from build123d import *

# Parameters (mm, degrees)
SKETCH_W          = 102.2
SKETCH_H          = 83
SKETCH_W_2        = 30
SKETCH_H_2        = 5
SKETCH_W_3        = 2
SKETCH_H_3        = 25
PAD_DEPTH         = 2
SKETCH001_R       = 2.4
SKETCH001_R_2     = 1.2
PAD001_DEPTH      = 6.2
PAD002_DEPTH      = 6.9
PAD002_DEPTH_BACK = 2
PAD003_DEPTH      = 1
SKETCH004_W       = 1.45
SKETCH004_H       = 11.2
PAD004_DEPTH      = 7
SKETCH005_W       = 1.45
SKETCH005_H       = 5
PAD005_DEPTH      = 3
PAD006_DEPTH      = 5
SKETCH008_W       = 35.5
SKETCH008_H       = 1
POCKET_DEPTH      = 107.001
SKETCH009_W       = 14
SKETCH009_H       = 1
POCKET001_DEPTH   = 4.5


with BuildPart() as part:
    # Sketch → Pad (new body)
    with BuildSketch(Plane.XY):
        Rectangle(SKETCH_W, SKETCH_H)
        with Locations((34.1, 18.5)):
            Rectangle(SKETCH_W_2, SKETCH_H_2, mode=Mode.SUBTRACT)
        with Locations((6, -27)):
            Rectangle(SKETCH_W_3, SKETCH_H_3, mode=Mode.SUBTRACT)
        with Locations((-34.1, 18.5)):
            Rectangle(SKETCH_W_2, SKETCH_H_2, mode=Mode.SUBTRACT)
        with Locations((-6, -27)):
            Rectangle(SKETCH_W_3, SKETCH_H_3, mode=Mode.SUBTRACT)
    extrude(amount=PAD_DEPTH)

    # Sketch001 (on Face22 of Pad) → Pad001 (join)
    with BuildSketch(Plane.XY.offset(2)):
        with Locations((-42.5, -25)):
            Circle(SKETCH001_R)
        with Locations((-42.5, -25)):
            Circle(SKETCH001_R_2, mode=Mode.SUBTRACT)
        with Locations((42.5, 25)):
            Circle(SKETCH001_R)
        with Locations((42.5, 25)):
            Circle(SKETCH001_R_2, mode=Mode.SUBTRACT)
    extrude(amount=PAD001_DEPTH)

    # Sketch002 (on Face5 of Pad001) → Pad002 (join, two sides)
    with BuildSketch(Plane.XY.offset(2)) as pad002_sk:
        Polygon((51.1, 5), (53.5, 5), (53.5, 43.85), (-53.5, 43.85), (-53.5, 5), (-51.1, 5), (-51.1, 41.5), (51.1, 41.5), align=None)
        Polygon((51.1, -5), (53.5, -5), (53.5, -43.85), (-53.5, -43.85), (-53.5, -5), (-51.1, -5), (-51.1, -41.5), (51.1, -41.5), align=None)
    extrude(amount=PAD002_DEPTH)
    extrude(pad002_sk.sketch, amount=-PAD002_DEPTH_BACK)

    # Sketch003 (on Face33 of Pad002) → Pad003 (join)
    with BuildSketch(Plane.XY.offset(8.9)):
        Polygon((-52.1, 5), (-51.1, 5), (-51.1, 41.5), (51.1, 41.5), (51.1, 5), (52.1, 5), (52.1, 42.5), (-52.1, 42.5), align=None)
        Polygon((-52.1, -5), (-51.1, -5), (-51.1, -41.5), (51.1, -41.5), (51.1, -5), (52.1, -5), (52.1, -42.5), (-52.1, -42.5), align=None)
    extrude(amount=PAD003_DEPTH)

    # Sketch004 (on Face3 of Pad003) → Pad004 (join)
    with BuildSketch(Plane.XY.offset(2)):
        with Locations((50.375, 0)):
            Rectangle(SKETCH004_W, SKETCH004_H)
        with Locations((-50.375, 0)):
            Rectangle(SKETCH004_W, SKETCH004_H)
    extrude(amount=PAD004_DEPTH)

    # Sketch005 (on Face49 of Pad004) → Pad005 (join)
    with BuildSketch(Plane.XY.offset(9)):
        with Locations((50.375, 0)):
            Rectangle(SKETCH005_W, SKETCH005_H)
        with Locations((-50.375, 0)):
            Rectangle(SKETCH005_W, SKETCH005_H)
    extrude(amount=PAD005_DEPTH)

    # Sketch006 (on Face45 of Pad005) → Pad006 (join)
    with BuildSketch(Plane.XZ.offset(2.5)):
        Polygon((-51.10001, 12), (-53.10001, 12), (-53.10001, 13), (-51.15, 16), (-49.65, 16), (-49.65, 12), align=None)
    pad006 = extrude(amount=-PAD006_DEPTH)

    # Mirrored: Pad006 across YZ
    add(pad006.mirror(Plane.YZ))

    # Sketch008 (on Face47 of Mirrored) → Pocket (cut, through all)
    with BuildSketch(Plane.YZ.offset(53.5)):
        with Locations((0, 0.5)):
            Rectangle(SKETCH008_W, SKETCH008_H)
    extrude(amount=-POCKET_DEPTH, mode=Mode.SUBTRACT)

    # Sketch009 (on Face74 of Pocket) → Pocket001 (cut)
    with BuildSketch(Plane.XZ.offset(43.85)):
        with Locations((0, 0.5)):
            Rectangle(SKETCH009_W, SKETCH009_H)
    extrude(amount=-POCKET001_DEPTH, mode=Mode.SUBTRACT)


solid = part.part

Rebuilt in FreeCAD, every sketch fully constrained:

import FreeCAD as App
import Part
import Sketcher


def add_polygon(sketch, points):
    """Adds a closed chain of lines whose ends are joined by coincident constraints."""
    first, n = sketch.GeometryCount, len(points)
    for a, b in zip(points, points[1:] + points[:1]):
        sketch.addGeometry(Part.LineSegment(App.Vector(*a, 0), App.Vector(*b, 0)), False)
    for i in range(n):
        sketch.addConstraint(Sketcher.Constraint("Coincident", first + i, 2, first + (i + 1) % n, 1))

doc = App.newDocument("Part")
body = doc.addObject("PartDesign::Body", "Body")

sketch1 = body.newObject("Sketcher::SketchObject", "Sketch")
sketch1.AttachmentSupport = (doc.getObject("XY_Plane"), [""])
sketch1.MapMode = "FlatFace"
add_polygon(sketch1, [(-51.1, 41.5), (-51.1, -41.5), (51.1, -41.5), (51.1, 41.5)])
add_polygon(sketch1, [(-5, -39.5), (-7, -39.5), (-7, -14.5), (-5, -14.5)])
add_polygon(sketch1, [(7, -39.5), (5, -39.5), (5, -14.5), (7, -14.5)])
add_polygon(sketch1, [(-19.1, 16), (-49.1, 16), (-49.1, 21), (-19.1, 21)])
add_polygon(sketch1, [(49.1, 16), (19.1, 16), (19.1, 21), (49.1, 21)])
sketch1.addConstraint([
    Sketcher.Constraint("Vertical", 0),
    Sketcher.Constraint("Horizontal", 1),
    Sketcher.Constraint("Vertical", 2),
    Sketcher.Constraint("Horizontal", 3),
    Sketcher.Constraint("Horizontal", 4),
    Sketcher.Constraint("Vertical", 5),
    Sketcher.Constraint("Horizontal", 6),
    Sketcher.Constraint("Vertical", 7),
    Sketcher.Constraint("Horizontal", 8),
    Sketcher.Constraint("Vertical", 9),
    Sketcher.Constraint("Horizontal", 10),
    Sketcher.Constraint("Vertical", 11),
    Sketcher.Constraint("Horizontal", 12),
    Sketcher.Constraint("Vertical", 13),
    Sketcher.Constraint("Horizontal", 14),
    Sketcher.Constraint("Vertical", 15),
    Sketcher.Constraint("Horizontal", 16),
    Sketcher.Constraint("Vertical", 17),
    Sketcher.Constraint("Horizontal", 18),
    Sketcher.Constraint("Vertical", 19),
    Sketcher.Constraint("Symmetric", 0, 2, 2, 2, -1, 1),
    Sketcher.Constraint("Symmetric", 7, 2, 8, 2, -2),
    Sketcher.Constraint("Symmetric", 5, 2, 10, 2, -2),
    Sketcher.Constraint("Symmetric", 15, 2, 16, 2, -2),
    Sketcher.Constraint("Symmetric", 13, 2, 18, 2, -2),
    Sketcher.Constraint("DistanceX", 4, 2, 4, 1, 2.0),
    Sketcher.Constraint("DistanceX", 12, 2, 12, 1, 30.0),
    Sketcher.Constraint("DistanceY", 0, 2, 0, 1, 83.0),
    Sketcher.Constraint("DistanceY", 5, 1, 5, 2, 25.0),
    Sketcher.Constraint("DistanceY", 13, 1, 13, 2, 5.0),
    Sketcher.Constraint("DistanceX", 1, 1, 1, 2, 102.2),
    Sketcher.Constraint("DistanceX", 4, 2, -1, 1, 7.0),
    Sketcher.Constraint("DistanceY", -1, 1, 12, 2, 16.0),
    Sketcher.Constraint("DistanceY", 0, 2, 4, 2, 2.0),
    Sketcher.Constraint("DistanceX", 3, 2, 12, 2, 2.0),
])
pad1 = body.newObject("PartDesign::Pad", "Pad")
pad1.Profile = sketch1
pad1.Length = 2

sketch2 = body.newObject("Sketcher::SketchObject", "Sketch001")
sketch2.AttachmentSupport = (doc.getObject("XY_Plane"), [""])
sketch2.MapMode = "FlatFace"
sketch2.AttachmentOffset = App.Placement(App.Vector(0, 0, 2), App.Rotation())
sketch2.addGeometry([
    Part.Circle(App.Vector(-42.5, -25, 0), App.Vector(0, 0, 1), 2.4),
    Part.Circle(App.Vector(-42.5, -25, 0), App.Vector(0, 0, 1), 1.2),
    Part.Circle(App.Vector(42.5, 25, 0), App.Vector(0, 0, 1), 2.4),
    Part.Circle(App.Vector(42.5, 25, 0), App.Vector(0, 0, 1), 1.2),
], False)
sketch2.addConstraint([
    Sketcher.Constraint("Coincident", 1, 3, 0, 3),
    Sketcher.Constraint("Coincident", 3, 3, 2, 3),
    Sketcher.Constraint("Equal", 0, 2),
    Sketcher.Constraint("Equal", 1, 3),
    Sketcher.Constraint("Symmetric", 0, 3, 2, 3, -1, 1),
    Sketcher.Constraint("Diameter", 0, 4.8),
    Sketcher.Constraint("Diameter", 1, 2.4),
    Sketcher.Constraint("DistanceY", 0, 3, -1, 1, 25.0),
    Sketcher.Constraint("DistanceX", 0, 3, 2, 3, 85.0),
])
pad2 = body.newObject("PartDesign::Pad", "Pad001")
pad2.Profile = sketch2
pad2.Length = 6.2

sketch3 = body.newObject("Sketcher::SketchObject", "Sketch002")
sketch3.AttachmentSupport = (doc.getObject("XY_Plane"), [""])
sketch3.MapMode = "FlatFace"
sketch3.AttachmentOffset = App.Placement(App.Vector(0, 0, 2), App.Rotation())
add_polygon(sketch3, [(51.1, 5), (53.5, 5), (53.5, 43.9), (-53.5, 43.9), (-53.5, 5), (-51.1, 5), (-51.1, 41.5), (51.1, 41.5)])
add_polygon(sketch3, [(53.5, -5), (51.1, -5), (51.1, -41.5), (-51.1, -41.5), (-51.1, -5), (-53.5, -5), (-53.5, -43.9), (53.5, -43.9)])
sketch3.addConstraint([
    Sketcher.Constraint("Horizontal", 0),
    Sketcher.Constraint("Vertical", 1),
    Sketcher.Constraint("Horizontal", 2),
    Sketcher.Constraint("Vertical", 3),
    Sketcher.Constraint("Horizontal", 4),
    Sketcher.Constraint("Vertical", 5),
    Sketcher.Constraint("Horizontal", 6),
    Sketcher.Constraint("Vertical", 7),
    Sketcher.Constraint("Horizontal", 8),
    Sketcher.Constraint("Vertical", 9),
    Sketcher.Constraint("Horizontal", 10),
    Sketcher.Constraint("Vertical", 11),
    Sketcher.Constraint("Horizontal", 12),
    Sketcher.Constraint("Vertical", 13),
    Sketcher.Constraint("Horizontal", 14),
    Sketcher.Constraint("Vertical", 15),
    Sketcher.Constraint("Symmetric", 4, 2, 8, 2, -1, 1),
    Sketcher.Constraint("Symmetric", 6, 2, 10, 2, -1, 1),
    Sketcher.Constraint("Symmetric", 0, 2, 12, 2, -1, 1),
    Sketcher.Constraint("Symmetric", 2, 2, 14, 2, -1, 1),
    Sketcher.Constraint("Symmetric", 0, 2, 3, 2, -2),
    Sketcher.Constraint("Vertical", 7, 2, 8, 2),
    Sketcher.Constraint("DistanceX", 2, 2, 2, 1, 107.0),
    Sketcher.Constraint("DistanceX", 0, 1, 0, 2, 2.4),
    Sketcher.Constraint("DistanceY", 5, 1, 5, 2, 36.5),
    Sketcher.Constraint("DistanceY", -1, 1, 0, 2, 5.0),
    Sketcher.Constraint("DistanceY", 1, 1, 1, 2, 38.85),
])
pad3 = body.newObject("PartDesign::Pad", "Pad002")
pad3.Profile = sketch3
pad3.Type = "TwoLengths"
pad3.Length = 6.9
pad3.Length2 = 2

sketch4 = body.newObject("Sketcher::SketchObject", "Sketch003")
sketch4.AttachmentSupport = (doc.getObject("XY_Plane"), [""])
sketch4.MapMode = "FlatFace"
sketch4.AttachmentOffset = App.Placement(App.Vector(0, 0, 8.9), App.Rotation())
add_polygon(sketch4, [(-52.1, 5), (-51.1, 5), (-51.1, 41.5), (51.1, 41.5), (51.1, 5), (52.1, 5), (52.1, 42.5), (-52.1, 42.5)])
add_polygon(sketch4, [(-51.1, -5), (-52.1, -5), (-52.1, -42.5), (52.1, -42.5), (52.1, -5), (51.1, -5), (51.1, -41.5), (-51.1, -41.5)])
sketch4.addConstraint([
    Sketcher.Constraint("Horizontal", 0),
    Sketcher.Constraint("Vertical", 1),
    Sketcher.Constraint("Horizontal", 2),
    Sketcher.Constraint("Vertical", 3),
    Sketcher.Constraint("Horizontal", 4),
    Sketcher.Constraint("Vertical", 5),
    Sketcher.Constraint("Horizontal", 6),
    Sketcher.Constraint("Vertical", 7),
    Sketcher.Constraint("Horizontal", 8),
    Sketcher.Constraint("Vertical", 9),
    Sketcher.Constraint("Horizontal", 10),
    Sketcher.Constraint("Vertical", 11),
    Sketcher.Constraint("Horizontal", 12),
    Sketcher.Constraint("Vertical", 13),
    Sketcher.Constraint("Horizontal", 14),
    Sketcher.Constraint("Vertical", 15),
    Sketcher.Constraint("Symmetric", 4, 2, 8, 2, -1, 1),
    Sketcher.Constraint("Symmetric", 6, 2, 10, 2, -1, 1),
    Sketcher.Constraint("Symmetric", 0, 2, 12, 2, -1, 1),
    Sketcher.Constraint("Symmetric", 2, 2, 14, 2, -1, 1),
    Sketcher.Constraint("Symmetric", 0, 2, 3, 2, -2),
    Sketcher.Constraint("Vertical", 7, 2, 8, 2),
    Sketcher.Constraint("DistanceX", 0, 1, 0, 2, 1.0),
    Sketcher.Constraint("DistanceX", 2, 1, 2, 2, 102.2),
    Sketcher.Constraint("DistanceY", 1, 1, 1, 2, 36.5),
    Sketcher.Constraint("DistanceY", 5, 1, 5, 2, 37.5),
    Sketcher.Constraint("DistanceY", -1, 1, 0, 2, 5.0),
])
pad4 = body.newObject("PartDesign::Pad", "Pad003")
pad4.Profile = sketch4
pad4.Length = 1

sketch5 = body.newObject("Sketcher::SketchObject", "Sketch004")
sketch5.AttachmentSupport = (doc.getObject("XY_Plane"), [""])
sketch5.MapMode = "FlatFace"
sketch5.AttachmentOffset = App.Placement(App.Vector(0, 0, 2), App.Rotation())
add_polygon(sketch5, [(49.6, 5.6), (49.6, -5.6), (51.1, -5.6), (51.1, 5.6)])
add_polygon(sketch5, [(-51.1, 5.6), (-51.1, -5.6), (-49.6, -5.6), (-49.6, 5.6)])
sketch5.addConstraint([
    Sketcher.Constraint("Vertical", 0),
    Sketcher.Constraint("Horizontal", 1),
    Sketcher.Constraint("Vertical", 2),
    Sketcher.Constraint("Horizontal", 3),
    Sketcher.Constraint("Vertical", 4),
    Sketcher.Constraint("Horizontal", 5),
    Sketcher.Constraint("Vertical", 6),
    Sketcher.Constraint("Horizontal", 7),
    Sketcher.Constraint("Symmetric", 2, 2, 4, 2, -1, 1),
    Sketcher.Constraint("Symmetric", 0, 2, 6, 2, -1, 1),
    Sketcher.Constraint("Horizontal", 1, 2, 4, 2),
    Sketcher.Constraint("DistanceY", 0, 2, 0, 1, 11.2),
    Sketcher.Constraint("DistanceX", 1, 1, 1, 2, 1.45),
    Sketcher.Constraint("DistanceX", -1, 1, 1, 2, 51.1),
])
pad5 = body.newObject("PartDesign::Pad", "Pad004")
pad5.Profile = sketch5
pad5.Length = 7

sketch6 = body.newObject("Sketcher::SketchObject", "Sketch005")
sketch6.AttachmentSupport = (doc.getObject("XY_Plane"), [""])
sketch6.MapMode = "FlatFace"
sketch6.AttachmentOffset = App.Placement(App.Vector(0, 0, 9), App.Rotation())
add_polygon(sketch6, [(49.6, 2.5), (49.6, -2.5), (51.1, -2.5), (51.1, 2.5)])
add_polygon(sketch6, [(-51.1, 2.5), (-51.1, -2.5), (-49.6, -2.5), (-49.6, 2.5)])
sketch6.addConstraint([
    Sketcher.Constraint("Vertical", 0),
    Sketcher.Constraint("Horizontal", 1),
    Sketcher.Constraint("Vertical", 2),
    Sketcher.Constraint("Horizontal", 3),
    Sketcher.Constraint("Vertical", 4),
    Sketcher.Constraint("Horizontal", 5),
    Sketcher.Constraint("Vertical", 6),
    Sketcher.Constraint("Horizontal", 7),
    Sketcher.Constraint("Symmetric", 2, 2, 4, 2, -1, 1),
    Sketcher.Constraint("Symmetric", 0, 2, 6, 2, -1, 1),
    Sketcher.Constraint("Horizontal", 1, 2, 4, 2),
    Sketcher.Constraint("DistanceY", 0, 2, 0, 1, 5.0),
    Sketcher.Constraint("DistanceX", 1, 1, 1, 2, 1.45),
    Sketcher.Constraint("DistanceX", -1, 1, 1, 2, 51.1),
])
pad6 = body.newObject("PartDesign::Pad", "Pad005")
pad6.Profile = sketch6
pad6.Length = 3

sketch7 = body.newObject("Sketcher::SketchObject", "Sketch006")
sketch7.AttachmentSupport = (doc.getObject("XZ_Plane"), [""])
sketch7.MapMode = "FlatFace"
sketch7.AttachmentOffset = App.Placement(App.Vector(0, 0, 2.5), App.Rotation())
add_polygon(sketch7, [(-53.1, 12), (-49.6, 12), (-49.6, 16), (-51.1, 16), (-53.1, 13)])
sketch7.addConstraint([
    Sketcher.Constraint("Horizontal", 0),
    Sketcher.Constraint("Vertical", 1),
    Sketcher.Constraint("Horizontal", 2),
    Sketcher.Constraint("Vertical", 4),
    Sketcher.Constraint("DistanceY", 1, 1, 1, 2, 4.0),
    Sketcher.Constraint("DistanceY", 4, 2, 4, 1, 1.0),
    Sketcher.Constraint("DistanceX", 2, 2, 2, 1, 1.5),
    Sketcher.Constraint("DistanceY", -1, 1, 0, 2, 12.0),
    Sketcher.Constraint("DistanceX", 0, 2, -1, 1, 49.65),
    Sketcher.Constraint("DistanceX", 0, 1, 0, 2, 3.45001),
])
pad7 = body.newObject("PartDesign::Pad", "Pad006")
pad7.Profile = sketch7
pad7.Length = 5
pad7.Reversed = True
doc.recompute()

mirrored = body.newObject("PartDesign::Mirrored", "Mirrored")
mirrored.Originals = [pad7]
mirrored.MirrorPlane = (doc.getObject("YZ_Plane"), [""])
body.Tip = mirrored

sketch8 = body.newObject("Sketcher::SketchObject", "Sketch007")
sketch8.AttachmentSupport = (doc.getObject("YZ_Plane"), [""])
sketch8.MapMode = "FlatFace"
sketch8.AttachmentOffset = App.Placement(App.Vector(0, 0, 53.5), App.Rotation())
add_polygon(sketch8, [(-17.8, 1), (-17.8, 0), (17.8, 0), (17.8, 1)])
sketch8.addConstraint([
    Sketcher.Constraint("Vertical", 0),
    Sketcher.Constraint("Horizontal", 1),
    Sketcher.Constraint("Vertical", 2),
    Sketcher.Constraint("Horizontal", 3),
    Sketcher.Constraint("Symmetric", 0, 2, 1, 2, -1, 1),
    Sketcher.Constraint("DistanceY", 0, 2, 0, 1, 1.0),
    Sketcher.Constraint("DistanceX", 1, 1, 1, 2, 35.5),
])
pocket1 = body.newObject("PartDesign::Pocket", "Pocket")
pocket1.Profile = sketch8
pocket1.Type = "ThroughAll"

sketch9 = body.newObject("Sketcher::SketchObject", "Sketch008")
sketch9.AttachmentSupport = (doc.getObject("XZ_Plane"), [""])
sketch9.MapMode = "FlatFace"
sketch9.AttachmentOffset = App.Placement(App.Vector(0, 0, 43.85), App.Rotation())
add_polygon(sketch9, [(-7, 1), (-7, 0), (7, 0), (7, 1)])
sketch9.addConstraint([
    Sketcher.Constraint("Vertical", 0),
    Sketcher.Constraint("Horizontal", 1),
    Sketcher.Constraint("Vertical", 2),
    Sketcher.Constraint("Horizontal", 3),
    Sketcher.Constraint("Symmetric", 0, 2, 1, 2, -1, 1),
    Sketcher.Constraint("DistanceX", 1, 1, 1, 2, 14.0),
    Sketcher.Constraint("DistanceY", 0, 2, 0, 1, 1.0),
])
pocket2 = body.newObject("PartDesign::Pocket", "Pocket001")
pocket2.Profile = sketch9
pocket2.Length = 4.5

doc.recompute()
